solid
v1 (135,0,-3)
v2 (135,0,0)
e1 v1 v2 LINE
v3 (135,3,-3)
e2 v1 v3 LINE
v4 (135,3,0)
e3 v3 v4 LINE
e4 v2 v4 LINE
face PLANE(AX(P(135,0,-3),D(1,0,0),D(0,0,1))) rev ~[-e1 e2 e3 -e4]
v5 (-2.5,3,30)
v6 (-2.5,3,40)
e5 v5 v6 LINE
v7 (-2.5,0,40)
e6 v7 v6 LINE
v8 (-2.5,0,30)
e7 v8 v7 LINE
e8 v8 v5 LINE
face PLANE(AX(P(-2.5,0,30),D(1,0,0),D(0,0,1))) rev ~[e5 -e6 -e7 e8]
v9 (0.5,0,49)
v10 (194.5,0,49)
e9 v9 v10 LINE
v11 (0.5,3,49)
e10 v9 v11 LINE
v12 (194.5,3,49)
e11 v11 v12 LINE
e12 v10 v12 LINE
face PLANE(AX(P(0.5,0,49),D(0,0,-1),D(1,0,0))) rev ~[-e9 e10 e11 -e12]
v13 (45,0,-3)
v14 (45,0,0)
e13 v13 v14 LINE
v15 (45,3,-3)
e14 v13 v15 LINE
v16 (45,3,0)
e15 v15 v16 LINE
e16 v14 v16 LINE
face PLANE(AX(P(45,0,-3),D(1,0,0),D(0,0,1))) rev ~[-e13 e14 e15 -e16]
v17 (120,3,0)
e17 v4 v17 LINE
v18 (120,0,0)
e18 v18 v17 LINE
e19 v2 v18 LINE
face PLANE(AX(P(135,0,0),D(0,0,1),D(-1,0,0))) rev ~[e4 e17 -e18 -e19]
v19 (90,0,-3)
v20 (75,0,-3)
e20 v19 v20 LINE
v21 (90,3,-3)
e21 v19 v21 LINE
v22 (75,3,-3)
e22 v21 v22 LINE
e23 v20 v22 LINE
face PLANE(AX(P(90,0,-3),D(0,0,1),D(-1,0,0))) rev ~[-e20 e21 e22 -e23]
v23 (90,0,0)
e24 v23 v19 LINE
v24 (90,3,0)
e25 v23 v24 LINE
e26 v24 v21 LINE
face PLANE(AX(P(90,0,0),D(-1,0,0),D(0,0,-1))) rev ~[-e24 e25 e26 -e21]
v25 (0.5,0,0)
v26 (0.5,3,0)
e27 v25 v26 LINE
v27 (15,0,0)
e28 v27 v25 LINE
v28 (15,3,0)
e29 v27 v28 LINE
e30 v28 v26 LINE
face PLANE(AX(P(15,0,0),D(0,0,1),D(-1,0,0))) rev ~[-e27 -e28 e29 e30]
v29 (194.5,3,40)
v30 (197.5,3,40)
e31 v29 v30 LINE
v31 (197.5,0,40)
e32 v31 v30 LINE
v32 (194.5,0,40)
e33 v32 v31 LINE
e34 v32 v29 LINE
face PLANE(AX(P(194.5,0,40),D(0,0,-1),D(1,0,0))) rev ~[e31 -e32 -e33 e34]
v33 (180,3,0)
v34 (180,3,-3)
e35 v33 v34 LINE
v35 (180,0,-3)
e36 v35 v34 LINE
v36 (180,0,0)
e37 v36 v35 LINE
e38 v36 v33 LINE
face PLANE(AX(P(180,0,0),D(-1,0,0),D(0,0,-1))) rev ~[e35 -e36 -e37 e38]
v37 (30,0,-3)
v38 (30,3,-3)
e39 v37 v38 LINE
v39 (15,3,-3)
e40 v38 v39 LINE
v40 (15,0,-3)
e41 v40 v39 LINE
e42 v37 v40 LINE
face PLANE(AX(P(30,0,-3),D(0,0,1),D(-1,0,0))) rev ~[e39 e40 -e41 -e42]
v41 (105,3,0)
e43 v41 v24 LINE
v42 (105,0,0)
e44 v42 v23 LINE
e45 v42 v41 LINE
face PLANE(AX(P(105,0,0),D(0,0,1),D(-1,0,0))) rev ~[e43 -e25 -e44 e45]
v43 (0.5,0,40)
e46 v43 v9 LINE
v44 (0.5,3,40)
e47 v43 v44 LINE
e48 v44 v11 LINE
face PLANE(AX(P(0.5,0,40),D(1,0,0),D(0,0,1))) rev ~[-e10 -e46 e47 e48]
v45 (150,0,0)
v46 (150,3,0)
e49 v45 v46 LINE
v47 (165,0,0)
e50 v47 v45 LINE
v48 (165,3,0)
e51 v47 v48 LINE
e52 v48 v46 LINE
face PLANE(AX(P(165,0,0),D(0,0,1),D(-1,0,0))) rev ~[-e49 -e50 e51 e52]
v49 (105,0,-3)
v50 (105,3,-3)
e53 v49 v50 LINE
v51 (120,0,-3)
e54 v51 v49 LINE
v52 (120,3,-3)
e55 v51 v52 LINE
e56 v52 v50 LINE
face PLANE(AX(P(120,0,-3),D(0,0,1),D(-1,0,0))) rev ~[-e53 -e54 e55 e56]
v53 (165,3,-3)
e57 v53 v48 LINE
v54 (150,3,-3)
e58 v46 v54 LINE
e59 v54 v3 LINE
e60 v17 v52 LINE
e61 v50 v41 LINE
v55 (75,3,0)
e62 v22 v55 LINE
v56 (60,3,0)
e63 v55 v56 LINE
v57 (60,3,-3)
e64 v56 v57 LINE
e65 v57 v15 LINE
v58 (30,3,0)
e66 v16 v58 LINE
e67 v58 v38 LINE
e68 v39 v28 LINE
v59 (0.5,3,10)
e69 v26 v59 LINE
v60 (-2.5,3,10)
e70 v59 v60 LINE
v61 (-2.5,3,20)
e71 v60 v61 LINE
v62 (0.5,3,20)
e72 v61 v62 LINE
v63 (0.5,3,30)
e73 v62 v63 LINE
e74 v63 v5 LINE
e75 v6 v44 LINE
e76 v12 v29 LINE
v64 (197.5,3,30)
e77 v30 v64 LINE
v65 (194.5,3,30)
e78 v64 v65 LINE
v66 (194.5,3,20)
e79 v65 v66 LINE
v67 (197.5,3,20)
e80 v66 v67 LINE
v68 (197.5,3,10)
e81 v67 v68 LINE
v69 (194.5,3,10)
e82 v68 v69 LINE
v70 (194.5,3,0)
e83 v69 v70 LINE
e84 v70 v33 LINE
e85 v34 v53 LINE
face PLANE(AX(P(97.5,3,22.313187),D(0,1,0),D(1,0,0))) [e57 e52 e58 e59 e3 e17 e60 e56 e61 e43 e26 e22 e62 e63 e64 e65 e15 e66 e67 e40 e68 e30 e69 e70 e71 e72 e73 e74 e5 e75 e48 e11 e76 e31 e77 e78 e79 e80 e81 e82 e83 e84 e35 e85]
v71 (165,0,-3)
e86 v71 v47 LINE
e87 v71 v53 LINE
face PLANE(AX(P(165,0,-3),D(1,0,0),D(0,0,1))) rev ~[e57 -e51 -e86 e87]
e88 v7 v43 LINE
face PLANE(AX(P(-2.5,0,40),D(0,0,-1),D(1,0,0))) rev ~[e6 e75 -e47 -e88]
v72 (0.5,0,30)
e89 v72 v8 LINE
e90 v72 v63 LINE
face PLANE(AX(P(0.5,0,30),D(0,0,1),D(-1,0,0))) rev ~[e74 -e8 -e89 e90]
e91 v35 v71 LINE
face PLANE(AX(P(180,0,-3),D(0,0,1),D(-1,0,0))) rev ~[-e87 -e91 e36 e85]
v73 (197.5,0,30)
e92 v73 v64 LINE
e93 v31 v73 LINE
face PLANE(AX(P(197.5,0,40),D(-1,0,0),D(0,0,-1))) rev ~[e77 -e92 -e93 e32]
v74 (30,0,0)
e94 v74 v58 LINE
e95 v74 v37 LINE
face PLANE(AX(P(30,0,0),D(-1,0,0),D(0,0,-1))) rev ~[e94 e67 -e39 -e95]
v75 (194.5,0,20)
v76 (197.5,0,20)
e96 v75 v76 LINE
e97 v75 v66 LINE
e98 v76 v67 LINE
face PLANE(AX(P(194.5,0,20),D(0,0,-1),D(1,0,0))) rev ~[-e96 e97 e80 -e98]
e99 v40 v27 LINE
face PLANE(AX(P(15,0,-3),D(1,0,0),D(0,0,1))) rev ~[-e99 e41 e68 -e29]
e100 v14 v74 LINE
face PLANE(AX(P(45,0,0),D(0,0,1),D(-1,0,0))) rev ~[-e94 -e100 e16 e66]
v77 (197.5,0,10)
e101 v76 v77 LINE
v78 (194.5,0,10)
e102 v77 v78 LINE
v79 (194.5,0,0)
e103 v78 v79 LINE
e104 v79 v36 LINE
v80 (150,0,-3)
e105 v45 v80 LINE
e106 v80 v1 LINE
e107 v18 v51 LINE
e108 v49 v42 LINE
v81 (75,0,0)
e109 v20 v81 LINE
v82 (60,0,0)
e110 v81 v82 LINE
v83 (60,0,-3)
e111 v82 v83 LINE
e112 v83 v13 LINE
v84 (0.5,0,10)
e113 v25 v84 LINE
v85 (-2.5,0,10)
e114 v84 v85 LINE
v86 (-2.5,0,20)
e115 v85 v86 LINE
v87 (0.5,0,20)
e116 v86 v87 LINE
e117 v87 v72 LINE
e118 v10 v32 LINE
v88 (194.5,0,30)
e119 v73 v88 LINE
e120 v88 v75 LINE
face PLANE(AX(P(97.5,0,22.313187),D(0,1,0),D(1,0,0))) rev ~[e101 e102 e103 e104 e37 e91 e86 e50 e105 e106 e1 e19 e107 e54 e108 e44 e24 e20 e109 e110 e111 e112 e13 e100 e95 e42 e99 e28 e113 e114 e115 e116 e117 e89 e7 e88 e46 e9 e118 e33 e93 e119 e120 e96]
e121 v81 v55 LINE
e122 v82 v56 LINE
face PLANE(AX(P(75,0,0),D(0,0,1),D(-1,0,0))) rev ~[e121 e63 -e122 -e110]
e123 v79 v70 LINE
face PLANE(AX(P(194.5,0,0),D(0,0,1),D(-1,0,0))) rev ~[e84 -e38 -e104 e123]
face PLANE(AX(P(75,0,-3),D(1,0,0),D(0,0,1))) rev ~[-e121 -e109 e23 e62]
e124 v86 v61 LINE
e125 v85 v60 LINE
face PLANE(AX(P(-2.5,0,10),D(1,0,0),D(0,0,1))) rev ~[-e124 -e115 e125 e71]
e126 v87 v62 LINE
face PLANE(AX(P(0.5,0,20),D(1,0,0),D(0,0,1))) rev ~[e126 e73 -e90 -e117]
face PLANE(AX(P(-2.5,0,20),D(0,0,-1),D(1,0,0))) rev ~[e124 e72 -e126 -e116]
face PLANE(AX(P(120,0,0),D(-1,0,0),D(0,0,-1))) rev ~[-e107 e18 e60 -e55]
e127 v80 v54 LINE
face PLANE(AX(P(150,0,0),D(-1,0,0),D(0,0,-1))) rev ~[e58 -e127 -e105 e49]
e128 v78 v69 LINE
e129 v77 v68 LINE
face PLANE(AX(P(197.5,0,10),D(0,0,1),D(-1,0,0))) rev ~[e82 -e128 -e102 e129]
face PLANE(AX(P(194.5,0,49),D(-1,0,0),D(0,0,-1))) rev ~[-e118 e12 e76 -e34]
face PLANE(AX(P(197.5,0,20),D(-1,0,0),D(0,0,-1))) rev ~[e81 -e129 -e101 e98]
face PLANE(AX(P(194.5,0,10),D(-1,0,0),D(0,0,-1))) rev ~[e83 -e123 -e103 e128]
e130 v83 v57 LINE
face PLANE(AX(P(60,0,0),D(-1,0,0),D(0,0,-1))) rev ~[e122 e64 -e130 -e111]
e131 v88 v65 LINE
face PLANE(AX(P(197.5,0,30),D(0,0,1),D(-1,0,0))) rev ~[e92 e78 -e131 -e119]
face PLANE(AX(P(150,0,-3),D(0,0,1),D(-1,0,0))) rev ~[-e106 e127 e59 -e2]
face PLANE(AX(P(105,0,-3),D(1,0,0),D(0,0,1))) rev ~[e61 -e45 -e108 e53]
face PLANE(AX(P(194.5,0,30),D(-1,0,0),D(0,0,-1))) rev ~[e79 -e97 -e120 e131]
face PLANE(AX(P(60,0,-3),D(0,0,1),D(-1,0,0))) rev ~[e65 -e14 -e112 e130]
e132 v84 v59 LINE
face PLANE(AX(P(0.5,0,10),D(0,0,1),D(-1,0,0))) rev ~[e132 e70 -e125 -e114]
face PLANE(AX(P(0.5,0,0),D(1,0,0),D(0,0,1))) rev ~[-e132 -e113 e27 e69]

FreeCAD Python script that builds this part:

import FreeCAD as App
import Part
import Sketcher

V = App.Vector


def add_polygon(sketch, points):
    """Adds a closed chain of lines whose ends are joined by coincident constraints."""
    first, n = sketch.GeometryCount, len(points)
    for a, b in zip(points, points[1:] + points[:1]):
        sketch.addGeometry(Part.LineSegment(App.Vector(*a, 0), App.Vector(*b, 0)), False)
    for i in range(n):
        sketch.addConstraint(Sketcher.Constraint("Coincident", first + i, 2, first + (i + 1) % n, 1))

doc = App.newDocument("Part")
body = doc.addObject("PartDesign::Body", "Body")

# Sketch on XZ plane
sketch1 = body.newObject("Sketcher::SketchObject", "Sketch")
sketch1.AttachmentSupport = (doc.getObject("XZ_Plane"), [""])
sketch1.MapMode = "FlatFace"
add_polygon(sketch1, [(15, 0), (0.5, 0), (0.5, 10), (-2.5, 10), (-2.5, 20), (0.5, 20), (0.5, 30), (-2.5, 30), (-2.5, 40), (0.5, 40), (0.5, 49), (194.5, 49), (194.5, 40), (197.5, 40), (197.5, 30), (194.5, 30), (194.5, 20), (197.5, 20), (197.5, 10), (194.5, 10), (194.5, 0), (180, 0), (180, -3), (165, -3), (165, 0), (150, 0), (150, -3), (135, -3), (135, 0), (120, 0), (120, -3), (105, -3), (105, 0), (90, 0), (90, -3), (75, -3), (75, 0), (60, 0), (60, -3), (45, -3), (45, 0), (30, 0), (30, -3), (15, -3)])  # lines 0-43
sketch1.addConstraint([
    Sketcher.Constraint("Horizontal", 0),
    Sketcher.Constraint("Vertical", 1),
    Sketcher.Constraint("Horizontal", 2),
    Sketcher.Constraint("Vertical", 3),
    Sketcher.Constraint("Horizontal", 4),
    Sketcher.Constraint("Vertical", 5),
    Sketcher.Constraint("Horizontal", 6),
    Sketcher.Constraint("Vertical", 7),
    Sketcher.Constraint("Horizontal", 8),
    Sketcher.Constraint("Vertical", 9),
    Sketcher.Constraint("Horizontal", 10),
    Sketcher.Constraint("Vertical", 11),
    Sketcher.Constraint("Horizontal", 12),
    Sketcher.Constraint("Vertical", 13),
    Sketcher.Constraint("Horizontal", 14),
    Sketcher.Constraint("Vertical", 15),
    Sketcher.Constraint("Horizontal", 16),
    Sketcher.Constraint("Vertical", 17),
    Sketcher.Constraint("Horizontal", 18),
    Sketcher.Constraint("Vertical", 19),
    Sketcher.Constraint("Horizontal", 20),
    Sketcher.Constraint("Vertical", 21),
    Sketcher.Constraint("Horizontal", 22),
    Sketcher.Constraint("Vertical", 23),
    Sketcher.Constraint("Horizontal", 24),
    Sketcher.Constraint("Vertical", 25),
    Sketcher.Constraint("Horizontal", 26),
    Sketcher.Constraint("Vertical", 27),
    Sketcher.Constraint("Horizontal", 28),
    Sketcher.Constraint("Vertical", 29),
    Sketcher.Constraint("Horizontal", 30),
    Sketcher.Constraint("Vertical", 31),
    Sketcher.Constraint("Horizontal", 32),
    Sketcher.Constraint("Vertical", 33),
    Sketcher.Constraint("Horizontal", 34),
    Sketcher.Constraint("Vertical", 35),
    Sketcher.Constraint("Horizontal", 36),
    Sketcher.Constraint("Vertical", 37),
    Sketcher.Constraint("Horizontal", 38),
    Sketcher.Constraint("Vertical", 39),
    Sketcher.Constraint("Horizontal", 40),
    Sketcher.Constraint("Vertical", 41),
    Sketcher.Constraint("Horizontal", 42),
    Sketcher.Constraint("Vertical", 43),
    Sketcher.Constraint("PointOnObject", 0, 2, -1),
    Sketcher.Constraint("PointOnObject", 19, 2, -1),
    Sketcher.Constraint("PointOnObject", 23, 2, -1),
    Sketcher.Constraint("PointOnObject", 27, 2, -1),
    Sketcher.Constraint("PointOnObject", 31, 2, -1),
    Sketcher.Constraint("PointOnObject", 35, 2, -1),
    Sketcher.Constraint("PointOnObject", 39, 2, -1),
    Sketcher.Constraint("Horizontal", 8, 2, 11, 2),
    Sketcher.Constraint("Horizontal", 6, 2, 13, 2),
    Sketcher.Constraint("Horizontal", 4, 2, 15, 2),
    Sketcher.Constraint("Horizontal", 2, 2, 17, 2),
    Sketcher.Constraint("Horizontal", 22, 2, 25, 2),
    Sketcher.Constraint("Horizontal", 26, 2, 29, 2),
    Sketcher.Constraint("Horizontal", 30, 2, 33, 2),
    Sketcher.Constraint("Horizontal", 34, 2, 37, 2),
    Sketcher.Constraint("Horizontal", 38, 2, 41, 2),
    Sketcher.Constraint("Vertical", 1, 2, 4, 2),
    Sketcher.Constraint("Vertical", 3, 2, 6, 2),
    Sketcher.Constraint("Vertical", 5, 2, 8, 2),
    Sketcher.Constraint("Vertical", 11, 2, 14, 2),
    Sketcher.Constraint("Vertical", 13, 2, 16, 2),
    Sketcher.Constraint("Vertical", 15, 2, 18, 2),
    Sketcher.Constraint("Equal", 8, 12),
    Sketcher.Constraint("Equal", 0, 20),
    Sketcher.Constraint("Equal", 22, 24),
    Sketcher.Constraint("Equal", 24, 26),
    Sketcher.Constraint("Equal", 26, 28),
    Sketcher.Constraint("Equal", 28, 30),
    Sketcher.Constraint("Equal", 30, 32),
    Sketcher.Constraint("Equal", 32, 34),
    Sketcher.Constraint("Equal", 34, 36),
    Sketcher.Constraint("Equal", 36, 38),
    Sketcher.Constraint("Equal", 38, 40),
    Sketcher.Constraint("Equal", 40, 42),
    Sketcher.Constraint("Equal", 1, 3),
    Sketcher.Constraint("Equal", 3, 5),
    Sketcher.Constraint("Equal", 5, 7),
    Sketcher.Constraint("Equal", 18, 21),
    Sketcher.Constraint("DistanceX", 2, 2, 2, 1, 3.0),
    Sketcher.Constraint("DistanceX", 10, 1, 10, 2, 194.0),
    Sketcher.Constraint("DistanceX", 22, 2, 22, 1, 15.0),
    Sketcher.Constraint("DistanceY", 1, 1, 1, 2, 10.0),
    Sketcher.Constraint("DistanceY", 9, 1, 9, 2, 9.0),
    Sketcher.Constraint("DistanceX", -1, 1, 20, 2, 180.0),
])
pad1 = body.newObject("PartDesign::Pad", "Pad")
pad1.Profile = sketch1
pad1.Length = 3
pad1.Reversed = True

doc.recompute()
